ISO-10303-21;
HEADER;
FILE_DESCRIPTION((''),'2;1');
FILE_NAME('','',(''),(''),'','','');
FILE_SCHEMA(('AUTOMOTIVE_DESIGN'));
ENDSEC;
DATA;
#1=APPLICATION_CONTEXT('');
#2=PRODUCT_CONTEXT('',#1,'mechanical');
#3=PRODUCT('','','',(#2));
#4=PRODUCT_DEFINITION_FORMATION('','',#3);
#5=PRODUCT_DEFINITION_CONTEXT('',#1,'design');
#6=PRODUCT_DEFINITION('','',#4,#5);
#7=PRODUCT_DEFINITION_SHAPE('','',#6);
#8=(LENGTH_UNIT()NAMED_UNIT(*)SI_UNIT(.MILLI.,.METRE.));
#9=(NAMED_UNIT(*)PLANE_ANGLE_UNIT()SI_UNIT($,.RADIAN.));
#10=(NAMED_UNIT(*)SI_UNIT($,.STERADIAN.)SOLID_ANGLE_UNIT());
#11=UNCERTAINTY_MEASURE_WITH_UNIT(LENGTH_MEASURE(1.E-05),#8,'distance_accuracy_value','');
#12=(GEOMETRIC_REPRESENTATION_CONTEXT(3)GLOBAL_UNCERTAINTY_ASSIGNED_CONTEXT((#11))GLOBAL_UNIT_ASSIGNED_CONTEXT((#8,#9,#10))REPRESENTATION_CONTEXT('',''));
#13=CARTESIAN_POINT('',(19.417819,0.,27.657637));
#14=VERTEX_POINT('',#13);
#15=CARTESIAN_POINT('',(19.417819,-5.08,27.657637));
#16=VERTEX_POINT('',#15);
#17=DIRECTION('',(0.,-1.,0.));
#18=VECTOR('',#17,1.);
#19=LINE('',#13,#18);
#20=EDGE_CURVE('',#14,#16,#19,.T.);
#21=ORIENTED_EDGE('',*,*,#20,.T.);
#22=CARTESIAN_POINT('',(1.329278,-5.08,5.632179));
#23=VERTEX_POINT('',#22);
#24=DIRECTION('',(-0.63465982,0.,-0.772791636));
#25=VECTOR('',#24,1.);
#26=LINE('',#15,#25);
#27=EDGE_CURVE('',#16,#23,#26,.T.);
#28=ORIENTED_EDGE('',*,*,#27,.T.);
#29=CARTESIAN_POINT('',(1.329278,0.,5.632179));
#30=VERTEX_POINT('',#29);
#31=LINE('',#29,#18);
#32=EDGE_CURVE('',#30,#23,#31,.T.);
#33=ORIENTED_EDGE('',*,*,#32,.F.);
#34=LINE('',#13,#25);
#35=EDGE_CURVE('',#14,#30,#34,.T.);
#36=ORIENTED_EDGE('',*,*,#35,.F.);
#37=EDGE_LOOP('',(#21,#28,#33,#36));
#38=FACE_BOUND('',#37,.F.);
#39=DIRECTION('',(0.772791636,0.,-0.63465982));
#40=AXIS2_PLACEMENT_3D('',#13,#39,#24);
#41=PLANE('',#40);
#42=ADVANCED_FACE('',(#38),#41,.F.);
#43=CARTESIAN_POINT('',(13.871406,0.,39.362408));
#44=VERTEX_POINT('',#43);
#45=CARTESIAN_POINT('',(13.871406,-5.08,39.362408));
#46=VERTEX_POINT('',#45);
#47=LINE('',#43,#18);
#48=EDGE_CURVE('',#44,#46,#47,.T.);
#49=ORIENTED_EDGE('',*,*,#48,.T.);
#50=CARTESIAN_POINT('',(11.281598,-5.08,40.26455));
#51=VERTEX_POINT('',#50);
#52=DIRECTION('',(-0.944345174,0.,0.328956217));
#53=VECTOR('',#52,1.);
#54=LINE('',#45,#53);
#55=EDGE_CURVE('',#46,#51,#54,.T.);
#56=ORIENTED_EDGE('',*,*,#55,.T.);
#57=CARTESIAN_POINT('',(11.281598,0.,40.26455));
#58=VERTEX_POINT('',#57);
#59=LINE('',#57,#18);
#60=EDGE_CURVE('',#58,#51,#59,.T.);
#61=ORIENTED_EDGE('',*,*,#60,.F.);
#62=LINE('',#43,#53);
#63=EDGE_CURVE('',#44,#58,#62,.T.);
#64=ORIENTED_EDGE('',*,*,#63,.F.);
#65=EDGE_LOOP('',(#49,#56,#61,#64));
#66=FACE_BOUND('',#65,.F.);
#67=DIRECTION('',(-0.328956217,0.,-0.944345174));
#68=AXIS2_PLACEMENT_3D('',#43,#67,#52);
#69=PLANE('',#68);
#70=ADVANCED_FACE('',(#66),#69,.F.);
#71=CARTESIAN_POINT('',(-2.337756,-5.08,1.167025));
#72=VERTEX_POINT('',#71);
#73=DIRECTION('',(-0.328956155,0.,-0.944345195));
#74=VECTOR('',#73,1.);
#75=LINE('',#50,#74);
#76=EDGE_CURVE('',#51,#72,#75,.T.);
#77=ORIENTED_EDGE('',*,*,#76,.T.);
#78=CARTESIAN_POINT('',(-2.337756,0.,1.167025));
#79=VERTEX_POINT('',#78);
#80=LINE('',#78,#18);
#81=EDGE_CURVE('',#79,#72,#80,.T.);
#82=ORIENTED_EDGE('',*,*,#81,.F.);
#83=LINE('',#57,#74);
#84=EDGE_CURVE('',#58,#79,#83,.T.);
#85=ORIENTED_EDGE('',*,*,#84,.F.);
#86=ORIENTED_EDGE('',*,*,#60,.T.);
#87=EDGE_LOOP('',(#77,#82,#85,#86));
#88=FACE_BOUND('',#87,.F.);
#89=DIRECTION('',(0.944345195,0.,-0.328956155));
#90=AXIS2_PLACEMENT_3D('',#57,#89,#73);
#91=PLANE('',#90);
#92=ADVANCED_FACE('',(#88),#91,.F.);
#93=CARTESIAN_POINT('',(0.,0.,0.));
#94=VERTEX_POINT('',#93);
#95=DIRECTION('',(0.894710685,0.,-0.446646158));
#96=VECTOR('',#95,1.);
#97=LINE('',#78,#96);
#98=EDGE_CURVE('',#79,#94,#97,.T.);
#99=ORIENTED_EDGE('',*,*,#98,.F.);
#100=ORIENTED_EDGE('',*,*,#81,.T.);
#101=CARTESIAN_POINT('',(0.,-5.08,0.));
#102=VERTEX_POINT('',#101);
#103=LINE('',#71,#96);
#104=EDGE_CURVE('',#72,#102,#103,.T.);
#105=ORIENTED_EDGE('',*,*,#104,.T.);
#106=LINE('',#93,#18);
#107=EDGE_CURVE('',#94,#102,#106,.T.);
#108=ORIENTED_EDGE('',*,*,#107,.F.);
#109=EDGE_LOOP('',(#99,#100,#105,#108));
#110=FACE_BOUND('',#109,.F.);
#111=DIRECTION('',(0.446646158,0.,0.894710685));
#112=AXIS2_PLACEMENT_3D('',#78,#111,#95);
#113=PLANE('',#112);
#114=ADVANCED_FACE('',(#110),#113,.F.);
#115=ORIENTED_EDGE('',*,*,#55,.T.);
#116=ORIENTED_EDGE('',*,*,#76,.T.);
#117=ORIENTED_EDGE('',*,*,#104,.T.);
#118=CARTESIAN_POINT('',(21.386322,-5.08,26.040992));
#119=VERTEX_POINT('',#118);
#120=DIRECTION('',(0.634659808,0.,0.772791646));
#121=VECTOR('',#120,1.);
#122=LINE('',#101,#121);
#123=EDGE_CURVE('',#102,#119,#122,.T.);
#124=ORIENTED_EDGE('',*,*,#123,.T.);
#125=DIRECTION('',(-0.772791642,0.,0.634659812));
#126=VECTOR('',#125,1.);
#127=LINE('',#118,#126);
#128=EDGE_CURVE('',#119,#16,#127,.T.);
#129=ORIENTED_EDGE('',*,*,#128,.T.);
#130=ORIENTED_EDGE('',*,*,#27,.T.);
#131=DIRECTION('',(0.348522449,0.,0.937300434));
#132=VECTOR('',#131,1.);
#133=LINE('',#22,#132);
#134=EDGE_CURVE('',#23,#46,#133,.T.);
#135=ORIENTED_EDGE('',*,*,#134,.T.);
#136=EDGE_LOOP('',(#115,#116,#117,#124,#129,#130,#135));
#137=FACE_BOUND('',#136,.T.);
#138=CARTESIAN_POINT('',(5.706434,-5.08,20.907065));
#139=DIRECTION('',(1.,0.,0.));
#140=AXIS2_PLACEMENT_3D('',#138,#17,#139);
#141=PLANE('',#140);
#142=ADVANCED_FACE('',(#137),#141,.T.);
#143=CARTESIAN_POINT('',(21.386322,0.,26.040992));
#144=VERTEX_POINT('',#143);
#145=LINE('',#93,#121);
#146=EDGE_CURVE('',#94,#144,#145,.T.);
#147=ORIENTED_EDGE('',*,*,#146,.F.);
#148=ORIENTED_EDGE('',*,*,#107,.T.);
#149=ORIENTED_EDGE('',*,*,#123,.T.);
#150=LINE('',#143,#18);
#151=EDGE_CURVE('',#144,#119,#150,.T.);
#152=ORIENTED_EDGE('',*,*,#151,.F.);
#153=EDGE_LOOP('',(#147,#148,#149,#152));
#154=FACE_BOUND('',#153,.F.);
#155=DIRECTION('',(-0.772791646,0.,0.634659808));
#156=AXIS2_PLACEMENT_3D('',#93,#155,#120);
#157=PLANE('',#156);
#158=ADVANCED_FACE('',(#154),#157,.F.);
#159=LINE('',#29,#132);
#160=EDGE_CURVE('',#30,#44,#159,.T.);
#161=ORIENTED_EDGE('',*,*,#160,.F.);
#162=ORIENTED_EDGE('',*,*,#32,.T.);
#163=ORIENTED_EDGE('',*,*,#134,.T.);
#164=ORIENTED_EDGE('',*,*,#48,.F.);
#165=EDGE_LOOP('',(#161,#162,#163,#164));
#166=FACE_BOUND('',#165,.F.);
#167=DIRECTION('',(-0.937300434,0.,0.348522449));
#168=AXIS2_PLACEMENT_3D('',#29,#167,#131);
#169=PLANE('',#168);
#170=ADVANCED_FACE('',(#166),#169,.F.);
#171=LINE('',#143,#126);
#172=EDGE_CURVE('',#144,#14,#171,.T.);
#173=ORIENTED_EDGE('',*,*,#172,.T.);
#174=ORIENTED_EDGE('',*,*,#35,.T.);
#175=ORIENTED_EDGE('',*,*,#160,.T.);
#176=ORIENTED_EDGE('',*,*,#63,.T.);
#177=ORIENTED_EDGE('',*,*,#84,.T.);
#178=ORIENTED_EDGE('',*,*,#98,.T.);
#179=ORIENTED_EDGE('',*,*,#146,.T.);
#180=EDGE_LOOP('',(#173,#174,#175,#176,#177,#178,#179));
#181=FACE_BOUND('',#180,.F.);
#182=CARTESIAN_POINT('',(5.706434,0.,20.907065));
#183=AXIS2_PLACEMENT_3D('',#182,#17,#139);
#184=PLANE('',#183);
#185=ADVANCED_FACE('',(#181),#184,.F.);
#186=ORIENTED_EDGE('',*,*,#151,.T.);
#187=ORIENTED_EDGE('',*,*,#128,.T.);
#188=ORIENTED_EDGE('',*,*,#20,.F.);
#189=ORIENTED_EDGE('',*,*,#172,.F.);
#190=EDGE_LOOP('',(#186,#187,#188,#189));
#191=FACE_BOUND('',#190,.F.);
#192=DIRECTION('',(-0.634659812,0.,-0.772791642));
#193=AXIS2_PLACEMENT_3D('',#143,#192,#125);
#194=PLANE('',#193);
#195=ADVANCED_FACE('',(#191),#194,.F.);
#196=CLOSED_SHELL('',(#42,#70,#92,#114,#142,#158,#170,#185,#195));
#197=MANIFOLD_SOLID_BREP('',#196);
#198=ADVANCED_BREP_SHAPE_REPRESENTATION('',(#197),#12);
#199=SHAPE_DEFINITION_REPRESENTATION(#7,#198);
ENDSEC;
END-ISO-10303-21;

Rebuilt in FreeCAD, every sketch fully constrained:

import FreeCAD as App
import Part
import Sketcher

V = App.Vector
Q = App.Units.Quantity

doc = App.newDocument("Part")
body = doc.addObject("PartDesign::Body", "Body")

# Sketch on XZ plane
sketch1 = body.newObject("Sketcher::SketchObject", "Sketch")
sketch1.AttachmentSupport = (doc.getObject("XZ_Plane"), [""])
sketch1.MapMode = "FlatFace"
sketch1.addGeometry(Part.LineSegment(V(11.3, 40.3, 0), V(-2.3, 1.2, 0)), False)
sketch1.addGeometry(Part.LineSegment(V(-2.3, 1.2, 0), V(0, 0, 0)), False)
sketch1.addGeometry(Part.LineSegment(V(0, 0, 0), V(21.4, 26, 0)), False)
sketch1.addGeometry(Part.LineSegment(V(21.4, 26, 0), V(19.4, 27.7, 0)), False)
sketch1.addGeometry(Part.LineSegment(V(19.4, 27.7, 0), V(1.3, 5.6, 0)), False)
sketch1.addGeometry(Part.LineSegment(V(1.3, 5.6, 0), V(13.9, 39.4, 0)), False)
sketch1.addGeometry(Part.LineSegment(V(13.9, 39.4, 0), V(11.3, 40.3, 0)), False)
sketch1.addConstraint(Sketcher.Constraint("Coincident", 0, 2, 1, 1))
sketch1.addConstraint(Sketcher.Constraint("Coincident", 1, 2, 2, 1))
sketch1.addConstraint(Sketcher.Constraint("Coincident", 2, 2, 3, 1))
sketch1.addConstraint(Sketcher.Constraint("Coincident", 3, 2, 4, 1))
sketch1.addConstraint(Sketcher.Constraint("Coincident", 4, 2, 5, 1))
sketch1.addConstraint(Sketcher.Constraint("Coincident", 5, 2, 6, 1))
sketch1.addConstraint(Sketcher.Constraint("Coincident", 6, 2, 0, 1))
sketch1.addConstraint(Sketcher.Constraint("Coincident", 1, 2, -1, 1))
sketch1.addConstraint(Sketcher.Constraint("Perpendicular", 2, 3))
sketch1.addConstraint(Sketcher.Constraint("Perpendicular", 3, 4))
sketch1.addConstraint(Sketcher.Constraint("Perpendicular", 0, 6))
sketch1.addConstraint(Sketcher.Constraint("DistanceX", 3, 2, 2, 2, Q("0.0775001 in")))
sketch1.addConstraint(Sketcher.Constraint("Distance", 2, Q("33.6973 mm")))
sketch1.addConstraint(Sketcher.Constraint("DistanceX", -1, 1, 6, 2, Q("11.281598 mm")))
sketch1.addConstraint(Sketcher.Constraint("Distance", 0, Q("41.40173 mm")))
sketch1.addConstraint(Sketcher.Constraint("Distance", 4, Q("28.50116 mm")))
sketch1.addConstraint(Sketcher.Constraint("Distance", 5, Q("35.986571 mm")))
sketch1.addConstraint(Sketcher.Constraint("DistanceX", -1, 1, 2, 2, Q("21.386322 mm")))
sketch1.addConstraint(Sketcher.Constraint("DistanceY", -1, 1, 5, 2, Q("39.362408 mm")))
sketch1.addConstraint(Sketcher.Constraint("DistanceY", -1, 1, 6, 2, Q("40.26455 mm")))
pad1 = body.newObject("PartDesign::Pad", "Pad")
pad1.Profile = sketch1
pad1.Length = Q("0.2 in")

doc.recompute()
